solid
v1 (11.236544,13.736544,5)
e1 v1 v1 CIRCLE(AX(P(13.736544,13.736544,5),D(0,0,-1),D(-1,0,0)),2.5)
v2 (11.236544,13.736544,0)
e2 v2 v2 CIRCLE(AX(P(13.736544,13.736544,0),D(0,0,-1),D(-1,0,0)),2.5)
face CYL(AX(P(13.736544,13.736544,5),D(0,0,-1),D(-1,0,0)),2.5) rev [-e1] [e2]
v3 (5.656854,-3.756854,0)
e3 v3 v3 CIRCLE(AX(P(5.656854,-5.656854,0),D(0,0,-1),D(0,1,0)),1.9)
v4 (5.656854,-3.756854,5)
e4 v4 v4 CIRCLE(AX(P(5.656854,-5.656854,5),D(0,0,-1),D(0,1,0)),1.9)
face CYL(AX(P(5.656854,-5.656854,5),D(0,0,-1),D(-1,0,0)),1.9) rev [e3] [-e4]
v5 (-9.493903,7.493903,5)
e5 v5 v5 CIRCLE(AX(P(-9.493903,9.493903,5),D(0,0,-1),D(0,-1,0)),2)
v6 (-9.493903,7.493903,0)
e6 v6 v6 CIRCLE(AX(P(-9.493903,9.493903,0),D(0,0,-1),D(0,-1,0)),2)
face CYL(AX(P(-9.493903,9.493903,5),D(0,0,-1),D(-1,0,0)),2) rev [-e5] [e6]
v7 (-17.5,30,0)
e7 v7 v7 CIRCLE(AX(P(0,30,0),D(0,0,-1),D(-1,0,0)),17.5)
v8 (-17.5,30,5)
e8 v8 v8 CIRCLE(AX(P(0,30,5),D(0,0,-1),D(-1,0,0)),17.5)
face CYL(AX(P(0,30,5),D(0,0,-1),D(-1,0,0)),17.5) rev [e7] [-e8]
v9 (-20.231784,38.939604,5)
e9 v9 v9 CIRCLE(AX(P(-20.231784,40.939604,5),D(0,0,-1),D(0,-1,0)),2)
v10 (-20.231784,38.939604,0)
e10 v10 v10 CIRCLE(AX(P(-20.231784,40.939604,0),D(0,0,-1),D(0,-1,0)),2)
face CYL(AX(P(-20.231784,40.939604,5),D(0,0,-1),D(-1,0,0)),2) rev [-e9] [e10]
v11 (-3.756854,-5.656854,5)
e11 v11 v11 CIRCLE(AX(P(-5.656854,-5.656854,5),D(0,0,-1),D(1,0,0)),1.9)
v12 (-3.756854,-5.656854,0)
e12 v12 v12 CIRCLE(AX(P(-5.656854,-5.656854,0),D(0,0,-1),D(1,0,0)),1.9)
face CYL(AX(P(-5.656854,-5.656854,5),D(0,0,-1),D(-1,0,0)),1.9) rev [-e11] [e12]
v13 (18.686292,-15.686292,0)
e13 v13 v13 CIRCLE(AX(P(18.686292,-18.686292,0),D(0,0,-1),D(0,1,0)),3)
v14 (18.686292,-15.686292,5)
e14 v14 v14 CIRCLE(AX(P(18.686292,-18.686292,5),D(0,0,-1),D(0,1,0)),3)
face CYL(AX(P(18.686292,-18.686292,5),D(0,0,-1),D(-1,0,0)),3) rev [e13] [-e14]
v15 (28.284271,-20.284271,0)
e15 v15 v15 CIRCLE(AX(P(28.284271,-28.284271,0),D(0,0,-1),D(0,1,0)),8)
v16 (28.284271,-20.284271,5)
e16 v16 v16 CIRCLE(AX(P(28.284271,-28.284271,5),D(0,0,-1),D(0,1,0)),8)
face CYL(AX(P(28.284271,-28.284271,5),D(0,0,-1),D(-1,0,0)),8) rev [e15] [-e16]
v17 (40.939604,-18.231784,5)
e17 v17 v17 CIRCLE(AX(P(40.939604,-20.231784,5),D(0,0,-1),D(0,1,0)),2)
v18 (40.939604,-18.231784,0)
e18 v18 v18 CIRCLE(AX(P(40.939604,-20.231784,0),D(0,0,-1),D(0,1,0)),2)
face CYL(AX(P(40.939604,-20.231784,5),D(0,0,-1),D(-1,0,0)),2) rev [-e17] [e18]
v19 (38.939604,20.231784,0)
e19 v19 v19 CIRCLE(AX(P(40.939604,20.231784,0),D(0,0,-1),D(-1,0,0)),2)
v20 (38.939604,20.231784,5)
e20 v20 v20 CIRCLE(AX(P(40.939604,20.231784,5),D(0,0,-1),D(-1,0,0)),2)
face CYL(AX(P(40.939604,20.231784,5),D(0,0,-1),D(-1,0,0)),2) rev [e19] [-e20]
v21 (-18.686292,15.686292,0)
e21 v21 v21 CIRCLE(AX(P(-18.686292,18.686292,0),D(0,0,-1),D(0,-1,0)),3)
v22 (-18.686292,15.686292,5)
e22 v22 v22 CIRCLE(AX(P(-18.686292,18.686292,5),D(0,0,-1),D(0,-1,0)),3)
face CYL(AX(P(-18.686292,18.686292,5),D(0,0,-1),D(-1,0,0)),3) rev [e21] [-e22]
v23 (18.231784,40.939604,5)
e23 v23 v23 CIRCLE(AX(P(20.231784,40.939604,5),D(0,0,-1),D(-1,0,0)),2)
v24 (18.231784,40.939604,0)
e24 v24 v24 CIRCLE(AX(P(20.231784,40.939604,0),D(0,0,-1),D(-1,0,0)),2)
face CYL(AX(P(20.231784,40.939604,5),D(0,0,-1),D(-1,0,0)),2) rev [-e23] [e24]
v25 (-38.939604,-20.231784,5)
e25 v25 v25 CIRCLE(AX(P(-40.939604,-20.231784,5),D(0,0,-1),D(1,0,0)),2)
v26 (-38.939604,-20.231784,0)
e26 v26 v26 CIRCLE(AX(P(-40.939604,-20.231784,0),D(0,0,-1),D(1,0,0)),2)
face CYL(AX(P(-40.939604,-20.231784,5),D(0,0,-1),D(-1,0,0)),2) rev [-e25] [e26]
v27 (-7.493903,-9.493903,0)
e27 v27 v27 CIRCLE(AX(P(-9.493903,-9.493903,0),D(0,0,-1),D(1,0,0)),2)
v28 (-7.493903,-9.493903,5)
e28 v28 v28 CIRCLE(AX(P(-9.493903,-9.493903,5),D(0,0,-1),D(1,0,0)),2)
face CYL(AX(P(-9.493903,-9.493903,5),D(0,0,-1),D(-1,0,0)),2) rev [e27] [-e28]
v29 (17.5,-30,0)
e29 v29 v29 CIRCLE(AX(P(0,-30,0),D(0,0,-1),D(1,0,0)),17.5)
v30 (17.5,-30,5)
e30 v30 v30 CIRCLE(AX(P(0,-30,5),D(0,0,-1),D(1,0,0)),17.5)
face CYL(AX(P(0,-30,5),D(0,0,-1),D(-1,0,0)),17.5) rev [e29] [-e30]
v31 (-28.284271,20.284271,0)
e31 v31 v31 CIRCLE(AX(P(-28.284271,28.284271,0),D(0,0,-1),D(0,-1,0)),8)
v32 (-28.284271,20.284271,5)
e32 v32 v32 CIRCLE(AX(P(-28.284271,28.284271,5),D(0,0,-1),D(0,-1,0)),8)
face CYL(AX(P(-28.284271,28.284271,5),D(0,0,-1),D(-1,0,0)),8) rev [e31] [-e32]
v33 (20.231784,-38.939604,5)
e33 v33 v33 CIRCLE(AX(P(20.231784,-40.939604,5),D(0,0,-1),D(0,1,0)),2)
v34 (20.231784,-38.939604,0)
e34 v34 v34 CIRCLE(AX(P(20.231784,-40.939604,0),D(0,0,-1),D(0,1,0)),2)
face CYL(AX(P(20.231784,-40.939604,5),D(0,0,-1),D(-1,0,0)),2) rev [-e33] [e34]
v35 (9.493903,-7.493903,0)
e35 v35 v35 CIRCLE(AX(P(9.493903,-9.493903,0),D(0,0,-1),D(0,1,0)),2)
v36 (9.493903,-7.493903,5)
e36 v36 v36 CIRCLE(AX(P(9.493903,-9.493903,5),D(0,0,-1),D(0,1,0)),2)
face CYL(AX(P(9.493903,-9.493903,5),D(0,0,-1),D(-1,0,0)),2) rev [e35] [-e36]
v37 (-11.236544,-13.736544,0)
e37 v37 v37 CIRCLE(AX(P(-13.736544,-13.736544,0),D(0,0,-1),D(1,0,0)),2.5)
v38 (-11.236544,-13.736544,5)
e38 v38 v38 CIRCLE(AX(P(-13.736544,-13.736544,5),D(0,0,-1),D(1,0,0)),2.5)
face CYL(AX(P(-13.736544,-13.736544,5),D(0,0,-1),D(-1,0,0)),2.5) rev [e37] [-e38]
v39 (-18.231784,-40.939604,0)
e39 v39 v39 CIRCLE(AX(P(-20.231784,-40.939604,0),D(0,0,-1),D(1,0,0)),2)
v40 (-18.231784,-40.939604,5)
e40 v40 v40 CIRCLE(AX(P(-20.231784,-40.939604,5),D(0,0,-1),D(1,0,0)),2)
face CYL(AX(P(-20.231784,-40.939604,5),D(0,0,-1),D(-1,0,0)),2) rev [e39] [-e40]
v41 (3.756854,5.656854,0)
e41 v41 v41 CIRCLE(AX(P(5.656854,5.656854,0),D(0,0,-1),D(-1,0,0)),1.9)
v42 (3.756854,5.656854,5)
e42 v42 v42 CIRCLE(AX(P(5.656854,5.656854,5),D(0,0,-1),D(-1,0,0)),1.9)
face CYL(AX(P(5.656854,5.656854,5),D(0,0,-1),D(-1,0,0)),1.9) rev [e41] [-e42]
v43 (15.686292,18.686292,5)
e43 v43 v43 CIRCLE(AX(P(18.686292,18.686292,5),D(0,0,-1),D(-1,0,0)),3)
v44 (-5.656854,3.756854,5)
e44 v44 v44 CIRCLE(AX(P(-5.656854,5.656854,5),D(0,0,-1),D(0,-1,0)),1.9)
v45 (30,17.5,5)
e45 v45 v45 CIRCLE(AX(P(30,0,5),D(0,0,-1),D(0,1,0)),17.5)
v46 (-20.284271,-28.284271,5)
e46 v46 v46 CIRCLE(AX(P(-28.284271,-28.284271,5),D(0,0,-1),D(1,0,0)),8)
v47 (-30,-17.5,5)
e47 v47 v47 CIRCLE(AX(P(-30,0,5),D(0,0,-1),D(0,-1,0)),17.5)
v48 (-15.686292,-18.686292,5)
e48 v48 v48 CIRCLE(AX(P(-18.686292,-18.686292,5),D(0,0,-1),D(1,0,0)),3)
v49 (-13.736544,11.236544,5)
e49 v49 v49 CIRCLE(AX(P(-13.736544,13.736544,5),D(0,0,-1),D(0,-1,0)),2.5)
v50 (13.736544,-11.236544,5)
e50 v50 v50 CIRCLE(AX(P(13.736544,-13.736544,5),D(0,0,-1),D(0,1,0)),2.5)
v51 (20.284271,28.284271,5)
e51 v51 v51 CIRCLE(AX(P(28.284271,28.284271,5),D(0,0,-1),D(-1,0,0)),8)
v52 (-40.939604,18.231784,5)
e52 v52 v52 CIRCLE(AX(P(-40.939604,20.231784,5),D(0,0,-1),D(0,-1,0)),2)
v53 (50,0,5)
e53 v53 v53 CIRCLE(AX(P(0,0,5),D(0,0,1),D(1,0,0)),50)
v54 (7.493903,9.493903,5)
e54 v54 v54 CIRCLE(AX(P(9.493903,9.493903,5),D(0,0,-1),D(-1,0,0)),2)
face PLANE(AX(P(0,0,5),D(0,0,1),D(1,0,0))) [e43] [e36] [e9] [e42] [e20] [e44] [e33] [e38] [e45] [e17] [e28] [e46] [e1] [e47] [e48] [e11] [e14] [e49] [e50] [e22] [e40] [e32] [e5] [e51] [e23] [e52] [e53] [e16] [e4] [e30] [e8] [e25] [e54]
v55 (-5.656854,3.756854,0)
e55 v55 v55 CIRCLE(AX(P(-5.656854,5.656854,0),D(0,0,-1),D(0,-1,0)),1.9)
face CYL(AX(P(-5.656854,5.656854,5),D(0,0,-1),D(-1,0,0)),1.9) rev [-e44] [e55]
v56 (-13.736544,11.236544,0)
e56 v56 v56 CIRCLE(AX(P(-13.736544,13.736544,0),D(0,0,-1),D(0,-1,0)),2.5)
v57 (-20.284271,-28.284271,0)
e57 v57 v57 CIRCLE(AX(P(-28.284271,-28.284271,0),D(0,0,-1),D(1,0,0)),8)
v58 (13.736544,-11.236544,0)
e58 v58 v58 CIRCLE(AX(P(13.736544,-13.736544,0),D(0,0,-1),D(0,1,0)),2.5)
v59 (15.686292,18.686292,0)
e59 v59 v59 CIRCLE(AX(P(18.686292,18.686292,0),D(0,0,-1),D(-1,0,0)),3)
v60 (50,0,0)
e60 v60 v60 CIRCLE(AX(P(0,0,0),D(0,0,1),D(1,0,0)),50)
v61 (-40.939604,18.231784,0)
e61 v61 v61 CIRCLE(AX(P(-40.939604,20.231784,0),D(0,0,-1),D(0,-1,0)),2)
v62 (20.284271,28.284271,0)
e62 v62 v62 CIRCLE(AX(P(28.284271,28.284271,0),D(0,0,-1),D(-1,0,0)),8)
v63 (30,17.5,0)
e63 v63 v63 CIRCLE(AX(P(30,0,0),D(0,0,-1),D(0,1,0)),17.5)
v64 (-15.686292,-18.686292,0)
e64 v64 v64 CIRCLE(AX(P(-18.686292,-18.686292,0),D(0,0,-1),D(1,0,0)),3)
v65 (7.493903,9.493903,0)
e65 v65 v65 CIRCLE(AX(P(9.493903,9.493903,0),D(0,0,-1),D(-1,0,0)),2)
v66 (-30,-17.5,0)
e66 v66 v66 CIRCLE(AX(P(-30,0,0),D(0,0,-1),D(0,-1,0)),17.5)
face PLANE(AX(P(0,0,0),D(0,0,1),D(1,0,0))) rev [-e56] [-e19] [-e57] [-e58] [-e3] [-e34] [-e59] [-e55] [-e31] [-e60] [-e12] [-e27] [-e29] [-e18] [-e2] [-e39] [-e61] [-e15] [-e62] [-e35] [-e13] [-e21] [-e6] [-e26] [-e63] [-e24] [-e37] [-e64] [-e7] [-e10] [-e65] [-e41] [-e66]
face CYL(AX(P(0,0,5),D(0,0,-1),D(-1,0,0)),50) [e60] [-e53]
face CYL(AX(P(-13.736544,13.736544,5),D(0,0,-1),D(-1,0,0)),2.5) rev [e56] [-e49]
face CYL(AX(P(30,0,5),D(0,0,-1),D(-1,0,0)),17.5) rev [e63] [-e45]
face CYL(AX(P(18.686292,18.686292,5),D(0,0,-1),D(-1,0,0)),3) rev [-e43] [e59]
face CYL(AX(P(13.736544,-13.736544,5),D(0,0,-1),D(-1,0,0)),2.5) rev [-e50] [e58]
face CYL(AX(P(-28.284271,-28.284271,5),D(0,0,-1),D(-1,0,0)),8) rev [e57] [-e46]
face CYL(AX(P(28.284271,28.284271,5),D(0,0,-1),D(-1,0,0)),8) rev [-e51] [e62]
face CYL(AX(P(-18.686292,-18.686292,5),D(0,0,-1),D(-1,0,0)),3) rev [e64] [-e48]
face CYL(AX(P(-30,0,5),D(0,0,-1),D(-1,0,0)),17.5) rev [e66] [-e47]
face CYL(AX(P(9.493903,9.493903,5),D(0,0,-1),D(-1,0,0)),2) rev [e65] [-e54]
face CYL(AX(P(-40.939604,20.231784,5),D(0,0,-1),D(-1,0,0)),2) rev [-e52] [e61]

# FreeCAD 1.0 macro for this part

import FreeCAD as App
import Part
import Sketcher
Q = App.Units.Quantity

doc = App.newDocument("Part")
params = doc.addObject("Spreadsheet::Sheet", "Params")
for row, (alias, value) in enumerate([
    ("sketch1_diameter", "100 mm"),
    ("pad1_length", "5 mm"),
    ("sketch2_diameter", "3.8 mm"),
    ("sketch3_diameter", "35 mm"),
    ("sketch4_diameter", "16 mm"),
    ("sketch4_diameter2", "6 mm"),
    ("sketch4_diameter3", "5 mm"),
    ("sketch4_diameter4", "4 mm"),
], start=1):
    params.set(f"A{row}", alias)
    params.set(f"B{row}", "=" + value)
    params.setAlias(f"B{row}", alias)

body = doc.addObject("PartDesign::Body", "Body")

# Sketch on XY plane
sketch1 = body.newObject("Sketcher::SketchObject", "Sketch")
sketch1.AttachmentSupport = (doc.getObject("XY_Plane"), [""])
sketch1.MapMode = "FlatFace"
sketch1.addGeometry(Part.Circle(App.Vector(0, 0, 0), App.Vector(0, 0, 1), 50), False)
sketch1.addConstraint([
    Sketcher.Constraint("Coincident", 0, 3, -1, 1),
    Sketcher.Constraint("Diameter", 0, Q("100 mm")),
])
sketch1.setExpression("Constraints[1]", "Params.sketch1_diameter")
pad1 = body.newObject("PartDesign::Pad", "Pad")
pad1.Profile = sketch1
pad1.setExpression("Length", "Params.pad1_length")

# Sketch on XY plane
sketch2 = body.newObject("Sketcher::SketchObject", "Sketch001")
sketch2.AttachmentSupport = (doc.getObject("XY_Plane"), [""])
sketch2.MapMode = "FlatFace"
sketch2.addGeometry(Part.Circle(App.Vector(5.7, 5.7, 0), App.Vector(0, 0, 1), 1.9), False)
sketch2.addConstraint([
    Sketcher.Constraint("Diameter", 0, Q("3.8 mm")),
    Sketcher.Constraint("DistanceX", -1, 1, 0, 3, Q("5.656854 mm")),
    Sketcher.Constraint("DistanceY", -1, 1, 0, 3, Q("5.656854 mm")),
])
sketch2.setExpression("Constraints[0]", "Params.sketch2_diameter")
pocket1 = body.newObject("PartDesign::Pocket", "Pocket")
pocket1.Profile = sketch2
pocket1.Type = "ThroughAll"
pocket1.Reversed = True
doc.recompute()

polarpattern = body.newObject("PartDesign::PolarPattern", "PolarPattern")
polarpattern.Originals = [pocket1]
polarpattern.Axis = (doc.getObject("Z_Axis"), [""])
polarpattern.Angle = 360
polarpattern.Occurrences = 4
body.Tip = polarpattern

# Sketch on XY plane
sketch3 = body.newObject("Sketcher::SketchObject", "Sketch002")
sketch3.AttachmentSupport = (doc.getObject("XY_Plane"), [""])
sketch3.MapMode = "FlatFace"
sketch3.addGeometry(Part.Circle(App.Vector(0, 30, 0), App.Vector(0, 0, 1), 18), False)
sketch3.addConstraint([
    Sketcher.Constraint("PointOnObject", 0, 3, -2),
    Sketcher.Constraint("Diameter", 0, Q("35 mm")),
    Sketcher.Constraint("DistanceY", -1, 1, 0, 3, Q("30 mm")),
])
sketch3.setExpression("Constraints[1]", "Params.sketch3_diameter")
pocket2 = body.newObject("PartDesign::Pocket", "Pocket001")
pocket2.Profile = sketch3
pocket2.Type = "ThroughAll"
pocket2.Reversed = True
doc.recompute()

polarpattern2 = body.newObject("PartDesign::PolarPattern", "PolarPattern001")
polarpattern2.Originals = [pocket2]
polarpattern2.Axis = (doc.getObject("Z_Axis"), [""])
polarpattern2.Angle = 360
polarpattern2.Occurrences = 4
body.Tip = polarpattern2

# Sketch on XY plane
sketch4 = body.newObject("Sketcher::SketchObject", "Sketch003")
sketch4.AttachmentSupport = (doc.getObject("XY_Plane"), [""])
sketch4.MapMode = "FlatFace"
sketch4.addGeometry([
    Part.Circle(App.Vector(28.3, 28.3, 0), App.Vector(0, 0, 1), 8),  # 0
    Part.Circle(App.Vector(18.7, 18.7, 0), App.Vector(0, 0, 1), 3),  # 1
    Part.Circle(App.Vector(13.7, 13.7, 0), App.Vector(0, 0, 1), 2.5),  # 2
    Part.Circle(App.Vector(9.5, 9.5, 0), App.Vector(0, 0, 1), 2),  # 3
    Part.Circle(App.Vector(20.2, 40.9, 0), App.Vector(0, 0, 1), 2),  # 4
    Part.Circle(App.Vector(40.9, 20.2, 0), App.Vector(0, 0, 1), 2),  # 5
], False)
sketch4.addConstraint([
    Sketcher.Constraint("Equal", 3, 4),
    Sketcher.Constraint("Equal", 4, 5),
    Sketcher.Constraint("Diameter", 0, Q("16 mm")),
    Sketcher.Constraint("Diameter", 1, Q("6 mm")),
    Sketcher.Constraint("Diameter", 2, Q("5 mm")),
    Sketcher.Constraint("Diameter", 3, Q("4 mm")),
    Sketcher.Constraint("DistanceY", 3, 3, 4, 3, Q("31.4457 mm")),
    Sketcher.Constraint("DistanceX", 3, 3, 5, 3, Q("31.4457 mm")),
    Sketcher.Constraint("DistanceX", -1, 1, 0, 3, Q("28.284271 mm")),
    Sketcher.Constraint("DistanceY", -1, 1, 0, 3, Q("28.284271 mm")),
    Sketcher.Constraint("DistanceX", -1, 1, 1, 3, Q("18.686292 mm")),
    Sketcher.Constraint("DistanceY", -1, 1, 1, 3, Q("18.686292 mm")),
    Sketcher.Constraint("DistanceX", 3, 3, 2, 3, Q("4.242641 mm")),
    Sketcher.Constraint("DistanceY", 3, 3, 2, 3, Q("4.242641 mm")),
    Sketcher.Constraint("DistanceX", 3, 3, 1, 3, Q("9.192388 mm")),
    Sketcher.Constraint("DistanceY", 3, 3, 1, 3, Q("9.192388 mm")),
    Sketcher.Constraint("DistanceX", 2, 3, 4, 3, Q("6.49524 mm")),
    Sketcher.Constraint("DistanceY", 2, 3, 5, 3, Q("6.49524 mm")),
])
sketch4.setExpression("Constraints[2]", "Params.sketch4_diameter")
sketch4.setExpression("Constraints[3]", "Params.sketch4_diameter2")
sketch4.setExpression("Constraints[4]", "Params.sketch4_diameter3")
sketch4.setExpression("Constraints[5]", "Params.sketch4_diameter4")
pocket3 = body.newObject("PartDesign::Pocket", "Pocket002")
pocket3.Profile = sketch4
pocket3.Type = "ThroughAll"
pocket3.Reversed = True
doc.recompute()

polarpattern3 = body.newObject("PartDesign::PolarPattern", "PolarPattern002")
polarpattern3.Originals = [pocket3]
polarpattern3.Axis = (doc.getObject("Z_Axis"), [""])
polarpattern3.Angle = 360
polarpattern3.Occurrences = 4
body.Tip = polarpattern3

doc.recompute()
